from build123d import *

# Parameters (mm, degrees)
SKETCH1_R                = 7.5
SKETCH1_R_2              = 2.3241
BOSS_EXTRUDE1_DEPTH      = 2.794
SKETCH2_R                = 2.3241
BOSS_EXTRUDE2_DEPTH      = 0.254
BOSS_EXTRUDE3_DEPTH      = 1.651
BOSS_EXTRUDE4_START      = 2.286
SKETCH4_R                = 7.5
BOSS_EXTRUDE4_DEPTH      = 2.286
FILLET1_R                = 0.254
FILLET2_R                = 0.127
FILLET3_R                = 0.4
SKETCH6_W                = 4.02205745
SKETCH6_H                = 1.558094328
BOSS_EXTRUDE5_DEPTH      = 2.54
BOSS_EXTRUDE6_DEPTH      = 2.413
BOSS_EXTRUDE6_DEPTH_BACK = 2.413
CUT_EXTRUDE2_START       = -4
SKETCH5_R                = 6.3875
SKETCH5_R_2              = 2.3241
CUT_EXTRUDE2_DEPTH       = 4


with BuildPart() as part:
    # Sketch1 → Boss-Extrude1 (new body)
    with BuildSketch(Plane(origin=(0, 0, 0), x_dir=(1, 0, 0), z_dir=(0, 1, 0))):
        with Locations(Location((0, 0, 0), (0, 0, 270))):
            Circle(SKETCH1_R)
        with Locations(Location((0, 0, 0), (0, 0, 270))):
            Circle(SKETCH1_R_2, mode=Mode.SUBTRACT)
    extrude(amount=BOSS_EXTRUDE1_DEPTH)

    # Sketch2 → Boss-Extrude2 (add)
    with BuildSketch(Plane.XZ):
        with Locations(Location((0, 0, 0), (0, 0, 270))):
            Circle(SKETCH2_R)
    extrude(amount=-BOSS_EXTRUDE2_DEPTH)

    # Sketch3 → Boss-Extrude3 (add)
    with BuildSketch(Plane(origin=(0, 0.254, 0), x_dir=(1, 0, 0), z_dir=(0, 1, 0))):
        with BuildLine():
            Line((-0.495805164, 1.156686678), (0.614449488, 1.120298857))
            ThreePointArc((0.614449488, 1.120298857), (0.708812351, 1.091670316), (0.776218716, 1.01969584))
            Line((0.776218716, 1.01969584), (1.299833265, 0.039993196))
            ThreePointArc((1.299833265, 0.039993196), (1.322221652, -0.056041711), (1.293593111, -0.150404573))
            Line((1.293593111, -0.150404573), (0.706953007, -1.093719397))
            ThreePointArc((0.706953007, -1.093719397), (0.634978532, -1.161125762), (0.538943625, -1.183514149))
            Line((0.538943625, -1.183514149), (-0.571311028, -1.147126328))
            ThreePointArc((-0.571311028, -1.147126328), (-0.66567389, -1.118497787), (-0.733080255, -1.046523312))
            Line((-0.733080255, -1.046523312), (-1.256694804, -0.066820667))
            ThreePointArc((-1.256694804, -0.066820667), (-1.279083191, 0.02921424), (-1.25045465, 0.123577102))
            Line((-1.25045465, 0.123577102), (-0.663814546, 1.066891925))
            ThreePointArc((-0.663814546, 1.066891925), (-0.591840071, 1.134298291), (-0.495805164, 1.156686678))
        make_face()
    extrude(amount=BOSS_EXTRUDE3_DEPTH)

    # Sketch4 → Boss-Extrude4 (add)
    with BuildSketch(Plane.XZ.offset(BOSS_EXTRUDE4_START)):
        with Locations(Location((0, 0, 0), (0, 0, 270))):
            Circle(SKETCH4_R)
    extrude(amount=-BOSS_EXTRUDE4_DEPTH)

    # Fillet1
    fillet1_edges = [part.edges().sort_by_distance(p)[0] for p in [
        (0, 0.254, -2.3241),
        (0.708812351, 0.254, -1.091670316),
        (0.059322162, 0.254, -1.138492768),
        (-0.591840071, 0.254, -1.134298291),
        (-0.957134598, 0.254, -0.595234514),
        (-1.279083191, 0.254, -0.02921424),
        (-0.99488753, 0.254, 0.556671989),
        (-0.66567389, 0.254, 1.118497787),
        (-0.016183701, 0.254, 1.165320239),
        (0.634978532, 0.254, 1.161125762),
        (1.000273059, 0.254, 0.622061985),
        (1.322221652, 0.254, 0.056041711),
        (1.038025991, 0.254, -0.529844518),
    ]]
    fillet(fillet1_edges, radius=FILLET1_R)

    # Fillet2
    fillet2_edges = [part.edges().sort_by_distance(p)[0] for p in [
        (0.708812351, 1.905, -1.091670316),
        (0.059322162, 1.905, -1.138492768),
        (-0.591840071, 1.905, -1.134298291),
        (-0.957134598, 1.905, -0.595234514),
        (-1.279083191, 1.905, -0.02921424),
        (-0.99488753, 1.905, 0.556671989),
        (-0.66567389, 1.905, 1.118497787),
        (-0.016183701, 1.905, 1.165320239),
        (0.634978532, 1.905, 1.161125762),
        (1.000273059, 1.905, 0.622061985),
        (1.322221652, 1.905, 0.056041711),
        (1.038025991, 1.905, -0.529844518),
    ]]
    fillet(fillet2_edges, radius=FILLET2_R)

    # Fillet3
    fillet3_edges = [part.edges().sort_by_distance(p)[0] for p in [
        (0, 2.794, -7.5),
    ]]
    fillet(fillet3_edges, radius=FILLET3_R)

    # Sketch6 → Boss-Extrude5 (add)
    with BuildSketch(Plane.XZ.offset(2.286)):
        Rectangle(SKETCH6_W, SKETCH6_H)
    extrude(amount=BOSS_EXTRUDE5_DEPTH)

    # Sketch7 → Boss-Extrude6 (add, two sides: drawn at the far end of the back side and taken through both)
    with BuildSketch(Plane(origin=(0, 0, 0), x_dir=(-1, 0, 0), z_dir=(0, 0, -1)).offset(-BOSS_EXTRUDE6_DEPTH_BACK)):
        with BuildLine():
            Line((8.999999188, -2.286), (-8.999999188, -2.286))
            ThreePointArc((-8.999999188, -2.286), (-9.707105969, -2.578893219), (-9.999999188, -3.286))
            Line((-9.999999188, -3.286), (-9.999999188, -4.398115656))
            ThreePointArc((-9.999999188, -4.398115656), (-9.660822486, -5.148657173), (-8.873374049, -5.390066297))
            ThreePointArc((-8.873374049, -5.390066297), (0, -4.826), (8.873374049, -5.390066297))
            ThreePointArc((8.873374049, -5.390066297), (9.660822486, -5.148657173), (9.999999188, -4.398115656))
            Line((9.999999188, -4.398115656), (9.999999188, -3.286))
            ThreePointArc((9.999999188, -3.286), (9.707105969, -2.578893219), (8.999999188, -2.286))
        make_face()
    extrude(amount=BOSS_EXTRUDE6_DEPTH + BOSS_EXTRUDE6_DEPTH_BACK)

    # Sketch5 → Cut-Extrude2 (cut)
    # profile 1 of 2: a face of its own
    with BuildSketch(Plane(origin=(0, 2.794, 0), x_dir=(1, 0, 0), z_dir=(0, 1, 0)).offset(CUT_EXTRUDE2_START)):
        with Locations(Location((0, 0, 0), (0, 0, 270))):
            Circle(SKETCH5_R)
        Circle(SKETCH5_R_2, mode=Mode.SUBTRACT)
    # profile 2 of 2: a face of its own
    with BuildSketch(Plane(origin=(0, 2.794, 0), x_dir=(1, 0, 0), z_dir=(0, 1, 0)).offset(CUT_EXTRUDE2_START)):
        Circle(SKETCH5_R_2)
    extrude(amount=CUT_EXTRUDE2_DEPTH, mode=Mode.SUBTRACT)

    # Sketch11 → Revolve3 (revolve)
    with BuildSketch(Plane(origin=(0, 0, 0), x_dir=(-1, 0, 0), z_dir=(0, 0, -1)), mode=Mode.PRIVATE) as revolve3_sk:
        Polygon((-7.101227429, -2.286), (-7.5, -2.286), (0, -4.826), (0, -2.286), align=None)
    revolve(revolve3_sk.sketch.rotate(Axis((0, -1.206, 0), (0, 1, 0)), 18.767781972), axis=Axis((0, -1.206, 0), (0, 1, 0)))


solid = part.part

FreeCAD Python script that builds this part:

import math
import FreeCAD as App
import Part
import Sketcher
Q = App.Units.Quantity


def edges_at(feature, points):
    """Names of the edges that pass closest to the given points."""
    edges = feature.Shape.Edges
    near = lambda p: min(range(len(edges)), key=lambda i: edges[i].distToShape(Part.Vertex(*p))[0])
    return sorted({f"Edge{near(p) + 1}" for p in points})

doc = App.newDocument("Part")
body = doc.addObject("PartDesign::Body", "Body")

sketch1 = body.newObject("Sketcher::SketchObject", "Sketch")
sketch1.AttachmentSupport = (doc.getObject("XZ_Plane"), [""])
sketch1.MapMode = "FlatFace"
sketch1.addGeometry(Part.Circle(App.Vector(0, 0, 0), App.Vector(0, 0, 1), 7.5), False)
sketch1.addGeometry(Part.Circle(App.Vector(0, 0, 0), App.Vector(0, 0, 1), 2.3241), False)
sketch1.addConstraint(Sketcher.Constraint("Coincident", 0, 3, -1, 1))
sketch1.addConstraint(Sketcher.Constraint("Coincident", 1, 3, -1, 1))
sketch1.addConstraint(Sketcher.Constraint("Diameter", 1, Q("0.183 in")))
sketch1.addConstraint(Sketcher.Constraint("Diameter", 0, Q("15 mm")))
pad1 = body.newObject("PartDesign::Pad", "Pad")
pad1.Profile = sketch1
pad1.Length = Q("0.11 in")
pad1.Reversed = True

sketch2 = body.newObject("Sketcher::SketchObject", "Sketch001")
sketch2.AttachmentSupport = (doc.getObject("XZ_Plane"), [""])
sketch2.MapMode = "FlatFace"
sketch2.addGeometry(Part.Circle(App.Vector(0, 0, 0), App.Vector(0, 0, 1), 2.3241), False)
sketch2.addConstraint(Sketcher.Constraint("Coincident", 0, 3, -1, 1))
sketch2.addConstraint(Sketcher.Constraint("Diameter", 0, Q("0.183 in")))
pad2 = body.newObject("PartDesign::Pad", "Pad001")
pad2.Profile = sketch2
pad2.Length = Q("0.01 in")
pad2.Reversed = True

sketch3 = body.newObject("Sketcher::SketchObject", "Sketch002")
sketch3.AttachmentSupport = (doc.getObject("XZ_Plane"), [""])
sketch3.MapMode = "FlatFace"
sketch3.AttachmentOffset = App.Placement(App.Vector(0, 0, -0.01 * 25.4), App.Rotation())
sketch3.addGeometry(Part.LineSegment(App.Vector(0.614449, -1.120299, 0), App.Vector(-0.495805, -1.156687, 0)), False)
sketch3.addGeometry(Part.ArcOfCircle(Part.Circle(App.Vector(-0.502045, -0.966289, 0), App.Vector(0, 0, 1), 0.1905), math.radians(-148.122843), math.radians(-88.122842)), False)
sketch3.addGeometry(Part.LineSegment(App.Vector(-0.663815, -1.066892, 0), App.Vector(-1.250455, -0.123577, 0)), False)
sketch3.addGeometry(Part.ArcOfCircle(Part.Circle(App.Vector(-1.088685, -0.022974, 0), App.Vector(0, 0, 1), 0.1905), math.radians(151.877157), math.radians(211.877157)), False)
sketch3.addGeometry(Part.LineSegment(App.Vector(-1.256695, 0.066821, 0), App.Vector(-0.73308, 1.046523, 0)), False)
sketch3.addGeometry(Part.ArcOfCircle(Part.Circle(App.Vector(-0.565071, 0.956729, 0), App.Vector(0, 0, 1), 0.1905), math.radians(91.877157), math.radians(151.877157)), False)
sketch3.addGeometry(Part.LineSegment(App.Vector(-0.571311, 1.147126, 0), App.Vector(0.538944, 1.183514, 0)), False)
sketch3.addGeometry(Part.ArcOfCircle(Part.Circle(App.Vector(0.545184, 0.993116, 0), App.Vector(0, 0, 1), 0.1905), math.radians(31.877157), math.radians(91.877158)), False)
sketch3.addGeometry(Part.LineSegment(App.Vector(0.706953, 1.093719, 0), App.Vector(1.293593, 0.150405, 0)), False)
sketch3.addGeometry(Part.ArcOfCircle(Part.Circle(App.Vector(1.131824, 0.049802, 0), App.Vector(0, 0, 1), 0.1905), math.radians(-28.122843), math.radians(31.877157)), False)
sketch3.addGeometry(Part.LineSegment(App.Vector(1.299833, -0.039993, 0), App.Vector(0.776219, -1.019696, 0)), False)
sketch3.addGeometry(Part.ArcOfCircle(Part.Circle(App.Vector(0.608209, -0.929901, 0), App.Vector(0, 0, 1), 0.1905), math.radians(-88.122843), math.radians(-28.122842)), False)
sketch3.addConstraint(Sketcher.Constraint("Tangent", 0, 2, 1, 2))
sketch3.addConstraint(Sketcher.Constraint("Tangent", 1, 1, 2, 1))
sketch3.addConstraint(Sketcher.Constraint("Tangent", 2, 2, 3, 2))
sketch3.addConstraint(Sketcher.Constraint("Tangent", 3, 1, 4, 1))
sketch3.addConstraint(Sketcher.Constraint("Tangent", 4, 2, 5, 2))
sketch3.addConstraint(Sketcher.Constraint("Tangent", 5, 1, 6, 1))
sketch3.addConstraint(Sketcher.Constraint("Tangent", 6, 2, 7, 2))
sketch3.addConstraint(Sketcher.Constraint("Tangent", 7, 1, 8, 1))
sketch3.addConstraint(Sketcher.Constraint("Tangent", 8, 2, 9, 2))
sketch3.addConstraint(Sketcher.Constraint("Tangent", 9, 1, 10, 1))
sketch3.addConstraint(Sketcher.Constraint("Tangent", 10, 2, 11, 2))
sketch3.addConstraint(Sketcher.Constraint("Tangent", 11, 1, 0, 1))
sketch3.addConstraint(Sketcher.Constraint("Equal", 1, 3))
sketch3.addConstraint(Sketcher.Constraint("Equal", 3, 5))
sketch3.addConstraint(Sketcher.Constraint("Equal", 5, 7))
sketch3.addConstraint(Sketcher.Constraint("Equal", 7, 9))
sketch3.addConstraint(Sketcher.Constraint("Equal", 9, 11))
sketch3.addConstraint(Sketcher.Constraint("Parallel", 0, 6))
sketch3.addConstraint(Sketcher.Constraint("Parallel", 2, 8))
sketch3.addConstraint(Sketcher.Constraint("Parallel", 4, 10))
sketch3.addConstraint(Sketcher.Constraint("Equal", 0, 2))
sketch3.addConstraint(Sketcher.Constraint("Equal", 2, 4))
sketch3.addConstraint(Sketcher.Constraint("Equal", 4, 6))
sketch3.addConstraint(Sketcher.Constraint("Radius", 1, Q("0.0075 in")))
sketch3.addConstraint(Sketcher.Constraint("DistanceY", -1, 1, 9, 3, Q("0.049802 mm")))
sketch3.addConstraint(Sketcher.Constraint("DistanceY", 11, 3, -1, 1, Q("0.929901 mm")))
sketch3.addConstraint(Sketcher.Constraint("DistanceY", 2, 2, 4, 2, Q("1.1701 mm")))
sketch3.addConstraint(Sketcher.Constraint("Distance", 0, Q("1.110851 mm")))
sketch3.addConstraint(Sketcher.Constraint("DistanceY", 1, 3, -1, 1, Q("0.966289 mm")))
sketch3.addConstraint(Sketcher.Constraint("DistanceX", 5, 3, -1, 1, Q("0.565071 mm")))
pad3 = body.newObject("PartDesign::Pad", "Pad002")
pad3.Profile = sketch3
pad3.Length = Q("0.065 in")
pad3.Reversed = True

sketch4 = body.newObject("Sketcher::SketchObject", "Sketch003")
sketch4.AttachmentSupport = (doc.getObject("XZ_Plane"), [""])
sketch4.MapMode = "FlatFace"
sketch4.AttachmentOffset = App.Placement(App.Vector(0, 0, 0.09 * 25.4), App.Rotation())
sketch4.addGeometry(Part.Circle(App.Vector(0, 0, 0), App.Vector(0, 0, 1), 7.5), False)
sketch4.addConstraint(Sketcher.Constraint("Coincident", 0, 3, -1, 1))
sketch4.addConstraint(Sketcher.Constraint("Diameter", 0, Q("15 mm")))
pad4 = body.newObject("PartDesign::Pad", "Pad003")
pad4.Profile = sketch4
pad4.Length = Q("0.09 in")
pad4.Reversed = True
doc.recompute()

fillet = body.newObject("PartDesign::Fillet", "Fillet")
fillet.Base = (pad4, edges_at(pad4, [
    (0, 0.254, -2.324),
    (0.709, 0.254, -1.092),
    (0.059, 0.254, -1.138),
    (-0.592, 0.254, -1.134),
    (-0.957, 0.254, -0.595),
    (-1.279, 0.254, -0.029),
    (-0.995, 0.254, 0.557),
    (-0.666, 0.254, 1.118),
    (-0.016, 0.254, 1.165),
    (0.635, 0.254, 1.161),
    (1, 0.254, 0.622),
    (1.322, 0.254, 0.056),
    (1.038, 0.254, -0.53),
]))
fillet.Radius = Q("0.01 in")
doc.recompute()

fillet2 = body.newObject("PartDesign::Fillet", "Fillet001")
fillet2.Base = (fillet, edges_at(fillet, [
    (0.709, 1.905, -1.092),
    (0.059, 1.905, -1.138),
    (-0.592, 1.905, -1.134),
    (-0.957, 1.905, -0.595),
    (-1.279, 1.905, -0.029),
    (-0.995, 1.905, 0.557),
    (-0.666, 1.905, 1.118),
    (-0.016, 1.905, 1.165),
    (0.635, 1.905, 1.161),
    (1, 1.905, 0.622),
    (1.322, 1.905, 0.056),
    (1.038, 1.905, -0.53),
]))
fillet2.Radius = Q("0.005 in")
doc.recompute()

fillet3 = body.newObject("PartDesign::Fillet", "Fillet002")
fillet3.Base = (fillet2, edges_at(fillet2, [(0, 2.794, -7.5)]))
fillet3.Radius = 0.4

sketch5 = body.newObject("Sketcher::SketchObject", "Sketch004")
sketch5.AttachmentSupport = (doc.getObject("XZ_Plane"), [""])
sketch5.MapMode = "FlatFace"
sketch5.AttachmentOffset = App.Placement(App.Vector(0, 0, 0.09 * 25.4), App.Rotation())
sketch5.addGeometry(Part.LineSegment(App.Vector(-2.011029, 0.779047, 0), App.Vector(-2.011029, -0.779047, 0)), False)
sketch5.addGeometry(Part.LineSegment(App.Vector(-2.011029, -0.779047, 0), App.Vector(2.011029, -0.779047, 0)), False)
sketch5.addGeometry(Part.LineSegment(App.Vector(2.011029, -0.779047, 0), App.Vector(2.011029, 0.779047, 0)), False)
sketch5.addGeometry(Part.LineSegment(App.Vector(2.011029, 0.779047, 0), App.Vector(-2.011029, 0.779047, 0)), False)
sketch5.addConstraint(Sketcher.Constraint("Coincident", 0, 2, 1, 1))
sketch5.addConstraint(Sketcher.Constraint("Coincident", 1, 2, 2, 1))
sketch5.addConstraint(Sketcher.Constraint("Coincident", 2, 2, 3, 1))
sketch5.addConstraint(Sketcher.Constraint("Coincident", 3, 2, 0, 1))
sketch5.addConstraint(Sketcher.Constraint("Vertical", 0))
sketch5.addConstraint(Sketcher.Constraint("Horizontal", 1))
sketch5.addConstraint(Sketcher.Constraint("Vertical", 2))
sketch5.addConstraint(Sketcher.Constraint("Horizontal", 3))
sketch5.addConstraint(Sketcher.Constraint("Symmetric", 0, 2, 2, 2, -1, 1))
sketch5.addConstraint(Sketcher.Constraint("DistanceX", 1, 1, 1, 2, Q("4.022057 mm")))
sketch5.addConstraint(Sketcher.Constraint("DistanceY", 0, 2, 0, 1, Q("1.558094 mm")))
pad5 = body.newObject("PartDesign::Pad", "Pad004")
pad5.Profile = sketch5
pad5.Length = Q("0.1 in")

sketch6 = body.newObject("Sketcher::SketchObject", "Sketch005")
sketch6.AttachmentSupport = (doc.getObject("XY_Plane"), [""])
sketch6.MapMode = "FlatFace"
sketch6.addGeometry(Part.LineSegment(App.Vector(-8.999999, -2.286, 0), App.Vector(8.999999, -2.286, 0)), False)
sketch6.addGeometry(Part.ArcOfCircle(Part.Circle(App.Vector(8.999999, -3.286, 0), App.Vector(0, 0, 1), 1), math.radians(0), math.radians(90)), False)
sketch6.addGeometry(Part.LineSegment(App.Vector(9.999999, -3.286, 0), App.Vector(9.999999, -4.398116, 0)), False)
sketch6.addGeometry(Part.ArcOfCircle(Part.Circle(App.Vector(8.999999, -4.398116, 0), App.Vector(0, 0, 1), 1), math.radians(-97.274615), math.radians(0)), False)
sketch6.addGeometry(Part.ArcOfCircle(Part.Circle(App.Vector(0, -74.901927, 0), App.Vector(0, 0, 1), 70.075927), math.radians(82.725385), math.radians(97.274615)), False)
sketch6.addGeometry(Part.ArcOfCircle(Part.Circle(App.Vector(-8.999999, -4.398116, 0), App.Vector(0, 0, 1), 1), math.radians(180), math.radians(277.274615)), False)
sketch6.addGeometry(Part.LineSegment(App.Vector(-9.999999, -4.398116, 0), App.Vector(-9.999999, -3.286, 0)), False)
sketch6.addGeometry(Part.ArcOfCircle(Part.Circle(App.Vector(-8.999999, -3.286, 0), App.Vector(0, 0, 1), 1), math.radians(90), math.radians(180)), False)
sketch6.addConstraint(Sketcher.Constraint("Tangent", 0, 2, 1, 2))
sketch6.addConstraint(Sketcher.Constraint("Tangent", 1, 1, 2, 1))
sketch6.addConstraint(Sketcher.Constraint("Tangent", 2, 2, 3, 2))
sketch6.addConstraint(Sketcher.Constraint("Tangent", 3, 1, 4, 1))
sketch6.addConstraint(Sketcher.Constraint("Tangent", 4, 2, 5, 2))
sketch6.addConstraint(Sketcher.Constraint("Tangent", 5, 1, 6, 1))
sketch6.addConstraint(Sketcher.Constraint("Tangent", 6, 2, 7, 2))
sketch6.addConstraint(Sketcher.Constraint("Tangent", 7, 1, 0, 1))
sketch6.addConstraint(Sketcher.Constraint("Horizontal", 0))
sketch6.addConstraint(Sketcher.Constraint("Vertical", 2))
sketch6.addConstraint(Sketcher.Constraint("Vertical", 6))
sketch6.addConstraint(Sketcher.Constraint("Equal", 1, 3))
sketch6.addConstraint(Sketcher.Constraint("Equal", 3, 5))
sketch6.addConstraint(Sketcher.Constraint("Equal", 5, 7))
sketch6.addConstraint(Sketcher.Constraint("Symmetric", 3, 3, 5, 3, -2))
sketch6.addConstraint(Sketcher.Constraint("DistanceY", 0, 2, -1, 1, Q("0.09 in")))
sketch6.addConstraint(Sketcher.Constraint("Radius", 1, Q("1 mm")))
sketch6.addConstraint(Sketcher.Constraint("DistanceX", 0, 1, 0, 2, Q("17.999998 mm")))
sketch6.addConstraint(Sketcher.Constraint("Radius", 4, Q("70.075927 mm")))
sketch6.addConstraint(Sketcher.Constraint("DistanceY", 2, 2, 2, 1, Q("1.112116 mm")))
pad6 = body.newObject("PartDesign::Pad", "Pad005")
pad6.Profile = sketch6
pad6.Type = "TwoLengths"
pad6.Length = Q("0.095 in")
pad6.Length2 = Q("0.095 in")
pad6.Reversed = True

sketch7 = body.newObject("Sketcher::SketchObject", "Sketch006")
sketch7.AttachmentSupport = (doc.getObject("XZ_Plane"), [""])
sketch7.MapMode = "FlatFace"
sketch7.AttachmentOffset = App.Placement(App.Vector(0, 0, 1.206), App.Rotation())
sketch7.addGeometry(Part.Circle(App.Vector(0, 0, 0), App.Vector(0, 0, 1), 6.3875), False)
sketch7.addConstraint(Sketcher.Constraint("Coincident", 0, 3, -1, 1))
sketch7.addConstraint(Sketcher.Constraint("Diameter", 0, Q("12.775 mm")))
pocket1 = body.newObject("PartDesign::Pocket", "Pocket")
pocket1.Profile = sketch7
pocket1.Length = 4

sketch8 = body.newObject("Sketcher::SketchObject", "Sketch007")
sketch8.AttachmentSupport = (doc.getObject("XY_Plane"), [""])
sketch8.MapMode = "FlatFace"
sketch8.addGeometry(Part.LineSegment(App.Vector(7.5, -2.286, 0), App.Vector(0, -4.826, 0)), False)
sketch8.addGeometry(Part.LineSegment(App.Vector(0, -4.826, 0), App.Vector(0, -2.286, 0)), False)
sketch8.addGeometry(Part.LineSegment(App.Vector(0, -2.286, 0), App.Vector(7.5, -2.286, 0)), False)
sketch8.addConstraint(Sketcher.Constraint("Coincident", 0, 2, 1, 1))
sketch8.addConstraint(Sketcher.Constraint("Coincident", 1, 2, 2, 1))
sketch8.addConstraint(Sketcher.Constraint("Coincident", 2, 2, 0, 1))
sketch8.addConstraint(Sketcher.Constraint("Vertical", 1))
sketch8.addConstraint(Sketcher.Constraint("Horizontal", 2))
sketch8.addConstraint(Sketcher.Constraint("PointOnObject", 0, 2, -2))
sketch8.addConstraint(Sketcher.Constraint("DistanceY", 1, 1, 1, 2, Q("0.1 in")))
sketch8.addConstraint(Sketcher.Constraint("DistanceY", 0, 2, -1, 1, Q("0.19 in")))
sketch8.addConstraint(Sketcher.Constraint("DistanceX", 2, 1, 2, 2, Q("7.5 mm")))
revolution = body.newObject("PartDesign::Revolution", "Revolution")
revolution.Profile = sketch8
revolution.ReferenceAxis = (sketch8, ["V_Axis"])
revolution.Angle = 360

doc.recompute()
